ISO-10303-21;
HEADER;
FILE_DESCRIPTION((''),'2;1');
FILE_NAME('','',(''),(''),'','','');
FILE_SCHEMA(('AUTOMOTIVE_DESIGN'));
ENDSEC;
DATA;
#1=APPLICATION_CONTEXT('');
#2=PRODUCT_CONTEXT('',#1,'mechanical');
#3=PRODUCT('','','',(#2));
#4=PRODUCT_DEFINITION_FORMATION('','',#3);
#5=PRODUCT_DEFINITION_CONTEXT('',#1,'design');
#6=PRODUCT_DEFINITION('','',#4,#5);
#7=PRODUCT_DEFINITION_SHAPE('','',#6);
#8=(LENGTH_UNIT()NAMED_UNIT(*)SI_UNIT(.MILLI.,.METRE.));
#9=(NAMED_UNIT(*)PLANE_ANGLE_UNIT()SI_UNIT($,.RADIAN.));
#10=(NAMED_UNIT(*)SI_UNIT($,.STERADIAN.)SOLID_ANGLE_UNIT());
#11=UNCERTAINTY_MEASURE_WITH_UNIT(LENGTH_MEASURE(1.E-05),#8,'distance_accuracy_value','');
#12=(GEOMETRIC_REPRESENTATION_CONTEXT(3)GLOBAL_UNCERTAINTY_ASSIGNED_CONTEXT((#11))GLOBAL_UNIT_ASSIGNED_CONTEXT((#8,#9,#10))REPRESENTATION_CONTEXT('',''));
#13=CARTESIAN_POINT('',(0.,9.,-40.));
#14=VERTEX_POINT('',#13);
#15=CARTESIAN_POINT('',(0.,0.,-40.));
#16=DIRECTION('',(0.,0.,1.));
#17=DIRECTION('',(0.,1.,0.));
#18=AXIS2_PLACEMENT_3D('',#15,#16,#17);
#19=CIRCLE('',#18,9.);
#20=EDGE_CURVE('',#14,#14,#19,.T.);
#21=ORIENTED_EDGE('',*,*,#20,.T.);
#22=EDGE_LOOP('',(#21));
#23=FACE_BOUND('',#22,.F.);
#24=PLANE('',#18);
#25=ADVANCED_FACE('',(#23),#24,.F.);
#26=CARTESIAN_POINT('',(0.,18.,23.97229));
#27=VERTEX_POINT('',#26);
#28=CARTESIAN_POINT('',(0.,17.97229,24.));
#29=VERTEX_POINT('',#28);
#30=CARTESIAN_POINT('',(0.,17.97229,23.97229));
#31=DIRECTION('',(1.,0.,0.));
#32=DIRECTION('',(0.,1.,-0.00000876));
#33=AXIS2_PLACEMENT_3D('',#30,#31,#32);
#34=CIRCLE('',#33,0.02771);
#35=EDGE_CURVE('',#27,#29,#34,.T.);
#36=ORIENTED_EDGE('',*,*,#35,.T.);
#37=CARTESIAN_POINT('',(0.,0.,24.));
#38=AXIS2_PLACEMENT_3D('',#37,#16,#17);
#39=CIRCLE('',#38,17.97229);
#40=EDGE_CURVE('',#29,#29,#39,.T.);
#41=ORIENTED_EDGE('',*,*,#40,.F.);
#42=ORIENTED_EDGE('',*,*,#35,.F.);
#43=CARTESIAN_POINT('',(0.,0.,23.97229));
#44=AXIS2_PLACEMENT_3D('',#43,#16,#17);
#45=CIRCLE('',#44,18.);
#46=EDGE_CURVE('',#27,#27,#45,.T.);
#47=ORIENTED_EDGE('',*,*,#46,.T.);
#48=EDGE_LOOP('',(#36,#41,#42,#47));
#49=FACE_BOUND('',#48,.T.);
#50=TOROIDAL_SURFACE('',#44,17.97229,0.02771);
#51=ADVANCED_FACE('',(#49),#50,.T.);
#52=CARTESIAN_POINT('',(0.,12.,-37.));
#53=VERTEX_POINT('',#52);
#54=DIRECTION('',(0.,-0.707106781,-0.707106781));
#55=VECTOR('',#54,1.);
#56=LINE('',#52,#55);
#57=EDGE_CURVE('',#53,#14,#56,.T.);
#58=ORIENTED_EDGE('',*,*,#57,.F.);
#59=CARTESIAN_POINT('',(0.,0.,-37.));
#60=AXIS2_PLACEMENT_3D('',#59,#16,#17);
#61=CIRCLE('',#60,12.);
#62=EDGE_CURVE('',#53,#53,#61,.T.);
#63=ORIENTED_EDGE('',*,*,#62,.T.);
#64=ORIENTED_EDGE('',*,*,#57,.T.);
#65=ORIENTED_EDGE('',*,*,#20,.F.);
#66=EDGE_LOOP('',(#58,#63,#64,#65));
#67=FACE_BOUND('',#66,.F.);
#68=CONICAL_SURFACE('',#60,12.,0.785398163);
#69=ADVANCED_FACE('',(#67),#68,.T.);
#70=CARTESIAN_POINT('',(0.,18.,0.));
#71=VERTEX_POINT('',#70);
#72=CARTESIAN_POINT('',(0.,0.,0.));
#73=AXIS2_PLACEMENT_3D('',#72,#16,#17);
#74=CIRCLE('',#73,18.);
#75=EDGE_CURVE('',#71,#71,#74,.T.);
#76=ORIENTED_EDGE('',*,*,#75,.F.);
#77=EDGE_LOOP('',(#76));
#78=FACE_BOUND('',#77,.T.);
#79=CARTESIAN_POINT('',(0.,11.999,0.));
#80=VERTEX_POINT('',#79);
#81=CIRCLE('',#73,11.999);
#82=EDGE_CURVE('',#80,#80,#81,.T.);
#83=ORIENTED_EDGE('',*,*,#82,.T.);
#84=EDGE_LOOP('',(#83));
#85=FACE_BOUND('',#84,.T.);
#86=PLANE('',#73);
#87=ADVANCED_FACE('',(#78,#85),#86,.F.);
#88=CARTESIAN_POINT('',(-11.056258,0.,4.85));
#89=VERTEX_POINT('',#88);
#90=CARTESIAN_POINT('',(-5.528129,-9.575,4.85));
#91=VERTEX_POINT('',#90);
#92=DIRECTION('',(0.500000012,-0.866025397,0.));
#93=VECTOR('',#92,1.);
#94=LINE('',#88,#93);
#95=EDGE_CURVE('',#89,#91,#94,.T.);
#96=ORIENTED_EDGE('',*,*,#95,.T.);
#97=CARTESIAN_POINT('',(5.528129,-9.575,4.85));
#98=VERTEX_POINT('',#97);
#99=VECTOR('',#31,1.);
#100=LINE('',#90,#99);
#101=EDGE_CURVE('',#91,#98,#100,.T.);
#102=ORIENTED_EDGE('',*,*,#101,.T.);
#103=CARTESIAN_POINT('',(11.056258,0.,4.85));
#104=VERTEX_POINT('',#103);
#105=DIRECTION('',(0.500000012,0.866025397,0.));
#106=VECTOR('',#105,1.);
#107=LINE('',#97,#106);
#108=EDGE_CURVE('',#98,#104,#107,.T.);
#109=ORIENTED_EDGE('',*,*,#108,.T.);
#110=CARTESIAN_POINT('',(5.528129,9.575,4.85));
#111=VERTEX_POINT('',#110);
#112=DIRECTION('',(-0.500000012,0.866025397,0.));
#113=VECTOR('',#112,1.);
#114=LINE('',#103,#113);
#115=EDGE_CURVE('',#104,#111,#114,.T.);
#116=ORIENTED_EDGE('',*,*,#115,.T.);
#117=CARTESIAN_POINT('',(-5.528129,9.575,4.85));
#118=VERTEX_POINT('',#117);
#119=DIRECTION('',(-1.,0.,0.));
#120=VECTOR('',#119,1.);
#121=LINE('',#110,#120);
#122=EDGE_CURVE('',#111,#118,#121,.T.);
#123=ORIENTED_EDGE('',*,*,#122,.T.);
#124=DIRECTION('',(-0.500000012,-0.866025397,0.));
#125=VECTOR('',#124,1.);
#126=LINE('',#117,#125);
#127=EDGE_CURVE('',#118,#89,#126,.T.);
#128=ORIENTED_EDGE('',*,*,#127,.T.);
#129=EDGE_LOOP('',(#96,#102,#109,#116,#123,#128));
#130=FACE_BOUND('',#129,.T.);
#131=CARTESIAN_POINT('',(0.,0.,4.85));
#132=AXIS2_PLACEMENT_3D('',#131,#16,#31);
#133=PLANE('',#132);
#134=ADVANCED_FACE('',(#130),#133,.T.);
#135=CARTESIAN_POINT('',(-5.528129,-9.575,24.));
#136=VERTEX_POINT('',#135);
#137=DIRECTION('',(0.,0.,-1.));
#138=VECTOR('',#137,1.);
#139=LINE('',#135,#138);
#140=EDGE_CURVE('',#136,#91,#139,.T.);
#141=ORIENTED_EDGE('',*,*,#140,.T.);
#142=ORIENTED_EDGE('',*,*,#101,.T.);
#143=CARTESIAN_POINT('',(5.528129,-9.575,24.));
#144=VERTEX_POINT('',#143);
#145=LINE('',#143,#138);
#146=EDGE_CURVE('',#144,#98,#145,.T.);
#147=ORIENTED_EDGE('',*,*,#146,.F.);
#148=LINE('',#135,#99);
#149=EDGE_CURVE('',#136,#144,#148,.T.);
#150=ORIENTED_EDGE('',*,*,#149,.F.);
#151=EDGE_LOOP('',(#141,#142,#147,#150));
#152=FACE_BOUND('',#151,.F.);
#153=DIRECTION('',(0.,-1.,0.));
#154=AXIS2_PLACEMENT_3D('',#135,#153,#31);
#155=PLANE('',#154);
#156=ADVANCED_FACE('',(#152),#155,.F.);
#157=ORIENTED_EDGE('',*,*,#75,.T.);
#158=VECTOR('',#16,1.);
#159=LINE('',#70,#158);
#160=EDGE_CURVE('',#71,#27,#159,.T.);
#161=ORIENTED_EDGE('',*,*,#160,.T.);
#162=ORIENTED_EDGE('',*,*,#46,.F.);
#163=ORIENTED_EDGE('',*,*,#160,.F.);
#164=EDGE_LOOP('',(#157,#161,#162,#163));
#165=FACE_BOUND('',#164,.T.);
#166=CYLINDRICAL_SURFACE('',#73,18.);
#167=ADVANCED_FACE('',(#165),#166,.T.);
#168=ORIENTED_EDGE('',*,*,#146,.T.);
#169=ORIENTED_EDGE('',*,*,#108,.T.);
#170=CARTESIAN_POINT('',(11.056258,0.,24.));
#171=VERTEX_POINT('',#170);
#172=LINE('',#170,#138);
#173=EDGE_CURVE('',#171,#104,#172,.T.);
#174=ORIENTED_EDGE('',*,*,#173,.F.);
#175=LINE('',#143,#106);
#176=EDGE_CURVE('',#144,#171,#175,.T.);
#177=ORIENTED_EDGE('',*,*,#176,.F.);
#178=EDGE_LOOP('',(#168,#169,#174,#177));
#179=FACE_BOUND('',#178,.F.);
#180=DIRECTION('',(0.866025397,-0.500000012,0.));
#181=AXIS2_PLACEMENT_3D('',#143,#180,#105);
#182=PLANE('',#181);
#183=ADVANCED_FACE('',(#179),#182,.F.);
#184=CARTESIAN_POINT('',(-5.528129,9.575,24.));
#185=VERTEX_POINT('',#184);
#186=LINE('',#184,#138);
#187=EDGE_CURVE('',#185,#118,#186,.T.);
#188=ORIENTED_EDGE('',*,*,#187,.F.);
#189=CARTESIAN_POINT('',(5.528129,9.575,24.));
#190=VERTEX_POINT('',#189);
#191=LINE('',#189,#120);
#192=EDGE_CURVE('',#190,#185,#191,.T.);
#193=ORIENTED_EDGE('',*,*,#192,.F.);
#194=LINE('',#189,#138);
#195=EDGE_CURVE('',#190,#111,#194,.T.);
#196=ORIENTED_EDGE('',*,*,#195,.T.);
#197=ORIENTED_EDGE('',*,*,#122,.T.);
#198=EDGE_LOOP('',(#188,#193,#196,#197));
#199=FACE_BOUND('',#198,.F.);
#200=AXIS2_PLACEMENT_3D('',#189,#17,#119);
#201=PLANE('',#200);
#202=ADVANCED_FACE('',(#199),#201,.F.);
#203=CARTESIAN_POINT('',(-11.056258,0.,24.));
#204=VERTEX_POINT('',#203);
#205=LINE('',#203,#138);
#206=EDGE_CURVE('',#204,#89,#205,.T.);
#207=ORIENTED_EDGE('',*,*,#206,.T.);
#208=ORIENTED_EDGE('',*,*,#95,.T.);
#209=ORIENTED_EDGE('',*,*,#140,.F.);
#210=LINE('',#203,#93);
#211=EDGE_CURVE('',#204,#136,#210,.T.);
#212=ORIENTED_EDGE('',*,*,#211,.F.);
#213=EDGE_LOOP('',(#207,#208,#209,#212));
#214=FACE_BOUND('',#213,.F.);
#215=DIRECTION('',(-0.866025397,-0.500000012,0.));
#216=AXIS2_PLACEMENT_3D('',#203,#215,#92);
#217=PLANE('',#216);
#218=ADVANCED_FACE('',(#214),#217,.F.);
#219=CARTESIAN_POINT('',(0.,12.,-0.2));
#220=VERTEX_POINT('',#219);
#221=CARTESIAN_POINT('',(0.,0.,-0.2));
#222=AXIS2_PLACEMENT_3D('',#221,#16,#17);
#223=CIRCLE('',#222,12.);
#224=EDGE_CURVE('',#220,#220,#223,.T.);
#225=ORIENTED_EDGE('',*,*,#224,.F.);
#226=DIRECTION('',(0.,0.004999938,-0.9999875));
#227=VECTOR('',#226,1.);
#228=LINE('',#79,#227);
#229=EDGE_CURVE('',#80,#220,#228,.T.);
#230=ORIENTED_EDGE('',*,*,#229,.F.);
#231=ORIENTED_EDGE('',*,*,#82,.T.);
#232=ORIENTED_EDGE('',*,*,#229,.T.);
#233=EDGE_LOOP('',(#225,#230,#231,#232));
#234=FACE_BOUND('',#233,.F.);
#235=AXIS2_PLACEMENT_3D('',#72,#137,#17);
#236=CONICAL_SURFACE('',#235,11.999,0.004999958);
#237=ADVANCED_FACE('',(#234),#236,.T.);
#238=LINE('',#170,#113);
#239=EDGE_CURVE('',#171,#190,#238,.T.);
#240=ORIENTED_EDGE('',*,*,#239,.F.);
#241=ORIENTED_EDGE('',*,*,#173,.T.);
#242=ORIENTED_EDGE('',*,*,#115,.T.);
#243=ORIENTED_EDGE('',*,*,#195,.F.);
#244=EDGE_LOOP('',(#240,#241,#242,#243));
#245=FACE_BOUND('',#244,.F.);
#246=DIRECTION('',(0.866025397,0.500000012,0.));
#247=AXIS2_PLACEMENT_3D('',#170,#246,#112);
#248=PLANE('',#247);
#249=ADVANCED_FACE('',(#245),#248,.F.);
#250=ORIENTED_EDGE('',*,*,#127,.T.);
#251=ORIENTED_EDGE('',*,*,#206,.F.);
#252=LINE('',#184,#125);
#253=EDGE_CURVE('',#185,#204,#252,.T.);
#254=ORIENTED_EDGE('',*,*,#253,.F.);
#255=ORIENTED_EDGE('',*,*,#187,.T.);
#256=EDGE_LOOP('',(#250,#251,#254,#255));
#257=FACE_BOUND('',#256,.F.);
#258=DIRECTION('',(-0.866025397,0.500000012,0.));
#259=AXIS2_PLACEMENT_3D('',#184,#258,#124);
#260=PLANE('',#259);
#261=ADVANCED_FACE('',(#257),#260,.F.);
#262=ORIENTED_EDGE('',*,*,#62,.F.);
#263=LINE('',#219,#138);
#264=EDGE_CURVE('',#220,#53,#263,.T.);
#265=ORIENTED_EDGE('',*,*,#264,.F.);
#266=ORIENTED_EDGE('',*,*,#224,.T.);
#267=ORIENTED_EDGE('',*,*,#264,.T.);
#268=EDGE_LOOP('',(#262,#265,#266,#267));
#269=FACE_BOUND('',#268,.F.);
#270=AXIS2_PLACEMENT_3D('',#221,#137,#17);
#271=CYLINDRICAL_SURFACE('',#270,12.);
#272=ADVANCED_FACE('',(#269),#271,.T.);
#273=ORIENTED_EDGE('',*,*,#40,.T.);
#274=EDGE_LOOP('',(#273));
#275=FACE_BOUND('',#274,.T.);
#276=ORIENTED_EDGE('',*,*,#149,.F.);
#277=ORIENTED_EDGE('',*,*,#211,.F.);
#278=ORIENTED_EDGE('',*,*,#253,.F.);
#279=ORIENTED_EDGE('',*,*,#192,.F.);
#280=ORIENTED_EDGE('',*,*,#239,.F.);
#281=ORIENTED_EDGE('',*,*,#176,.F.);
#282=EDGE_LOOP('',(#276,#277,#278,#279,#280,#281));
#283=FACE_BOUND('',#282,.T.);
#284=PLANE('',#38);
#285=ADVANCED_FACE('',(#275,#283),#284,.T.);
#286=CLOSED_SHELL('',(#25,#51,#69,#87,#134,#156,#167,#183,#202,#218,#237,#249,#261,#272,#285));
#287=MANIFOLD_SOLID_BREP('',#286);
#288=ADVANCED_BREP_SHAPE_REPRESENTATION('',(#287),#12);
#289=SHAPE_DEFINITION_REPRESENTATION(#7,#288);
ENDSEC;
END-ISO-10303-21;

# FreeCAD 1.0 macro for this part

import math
import FreeCAD as App
import Part
import Sketcher

V = App.Vector
Q = App.Units.Quantity

doc = App.newDocument("Part")
body = doc.addObject("PartDesign::Body", "Body")

# Sketch on YZ plane
sketch1 = body.newObject("Sketcher::SketchObject", "Sketch")
sketch1.AttachmentSupport = (doc.getObject("YZ_Plane"), [""])
sketch1.MapMode = "FlatFace"
sketch1.addGeometry([
    Part.LineSegment(V(11.999, 0, 0), V(18, 0, 0)),  # 0
    Part.LineSegment(V(18, 0, 0), V(18, 23.972, 0)),  # 1
    Part.ArcOfCircle(Part.Circle(V(17.972, 23.972, 0), V(0, 0, 1), 0.028), math.radians(0), math.radians(90)),  # 2
    Part.LineSegment(V(17.972, 24, 0), V(0, 24, 0)),  # 3
    Part.LineSegment(V(0, 24, 0), V(0, -40, 0)),  # 4
    Part.LineSegment(V(0, -40, 0), V(9, -40, 0)),  # 5
    Part.LineSegment(V(9, -40, 0), V(12, -37, 0)),  # 6
    Part.LineSegment(V(12, -37, 0), V(12, -0.2, 0)),  # 7
    Part.LineSegment(V(12, -0.2, 0), V(11.999, 0, 0)),  # 8
], False)
sketch1.addConstraint([
    Sketcher.Constraint("Coincident", 0, 2, 1, 1),
    Sketcher.Constraint("Coincident", 1, 2, 2, 1),
    Sketcher.Constraint("Coincident", 2, 2, 3, 1),
    Sketcher.Constraint("Coincident", 3, 2, 4, 1),
    Sketcher.Constraint("Coincident", 4, 2, 5, 1),
    Sketcher.Constraint("Coincident", 5, 2, 6, 1),
    Sketcher.Constraint("Coincident", 6, 2, 7, 1),
    Sketcher.Constraint("Coincident", 7, 2, 8, 1),
    Sketcher.Constraint("Coincident", 8, 2, 0, 1),
    Sketcher.Constraint("Horizontal", 0),
    Sketcher.Constraint("Vertical", 1),
    Sketcher.Constraint("Horizontal", 3),
    Sketcher.Constraint("Vertical", 4),
    Sketcher.Constraint("Horizontal", 5),
    Sketcher.Constraint("Vertical", 7),
    Sketcher.Constraint("PointOnObject", 0, 2, -1),
    Sketcher.Constraint("PointOnObject", 3, 2, -2),
    Sketcher.Constraint("Horizontal", 2, 3, 1, 2),
    Sketcher.Constraint("DistanceX", 5, 1, 5, 2, 9.0),
    Sketcher.Constraint("DistanceY", 4, 2, 4, 1, 64.0),
    Sketcher.Constraint("Angle", 6, Q("45 deg")),
    Sketcher.Constraint("DistanceY", 7, 1, 7, 2, 36.8),
    Sketcher.Constraint("DistanceX", -1, 1, 0, 2, 18.0),
    Sketcher.Constraint("DistanceY", -1, 1, 2, 2, 24.0),
    Sketcher.Constraint("DistanceX", -1, 1, 6, 2, 12.0),
    Sketcher.Constraint("DistanceX", 0, 1, 0, 2, 6.001),
    Sketcher.Constraint("Radius", 2, 0.02771),
    Sketcher.Constraint("DistanceX", 3, 2, 3, 1, 17.97229),
])
revolution = body.newObject("PartDesign::Revolution", "Revolution")
revolution.Profile = sketch1
revolution.ReferenceAxis = (sketch1, ["V_Axis"])
revolution.Angle = 360

# Sketch on XY plane
sketch2 = body.newObject("Sketcher::SketchObject", "Sketch001")
sketch2.AttachmentSupport = (doc.getObject("XY_Plane"), [""])
sketch2.MapMode = "FlatFace"
sketch2.AttachmentOffset = App.Placement(V(0, 0, 24), App.Rotation())
sketch2.addGeometry([
    Part.LineSegment(V(11, 0, 0), V(6, 10, 0)),  # 0
    Part.LineSegment(V(6, 10, 0), V(-6, 10, 0)),  # 1
    Part.LineSegment(V(-6, 10, 0), V(-11, 0, 0)),  # 2
    Part.LineSegment(V(-11, 0, 0), V(-6, -10, 0)),  # 3
    Part.LineSegment(V(-6, -10, 0), V(6, -10, 0)),  # 4
    Part.LineSegment(V(6, -10, 0), V(11, 0, 0)),  # 5
], False)
sketch2.addConstraint([
    Sketcher.Constraint("Coincident", 0, 2, 1, 1),
    Sketcher.Constraint("Coincident", 1, 2, 2, 1),
    Sketcher.Constraint("Coincident", 2, 2, 3, 1),
    Sketcher.Constraint("Coincident", 3, 2, 4, 1),
    Sketcher.Constraint("Coincident", 4, 2, 5, 1),
    Sketcher.Constraint("Coincident", 5, 2, 0, 1),
    Sketcher.Constraint("Horizontal", 1),
    Sketcher.Constraint("Horizontal", 4),
    Sketcher.Constraint("Symmetric", 0, 2, 3, 2, -1, 1),
    Sketcher.Constraint("Symmetric", 2, 2, 5, 2, -1, 1),
    Sketcher.Constraint("PointOnObject", 2, 2, -1),
    Sketcher.Constraint("Parallel", 2, 5),
    Sketcher.Constraint("Vertical", 1, 2, 3, 2),
    Sketcher.Constraint("Angle", 0, Q("120.000001 deg")),
    Sketcher.Constraint("DistanceY", 3, 2, 1, 2, 19.15),
    Sketcher.Constraint("DistanceX", 1, 2, 1, 1, 11.056258),
])
pocket1 = body.newObject("PartDesign::Pocket", "Pocket")
pocket1.Profile = sketch2
pocket1.Length = 19.15

doc.recompute()
